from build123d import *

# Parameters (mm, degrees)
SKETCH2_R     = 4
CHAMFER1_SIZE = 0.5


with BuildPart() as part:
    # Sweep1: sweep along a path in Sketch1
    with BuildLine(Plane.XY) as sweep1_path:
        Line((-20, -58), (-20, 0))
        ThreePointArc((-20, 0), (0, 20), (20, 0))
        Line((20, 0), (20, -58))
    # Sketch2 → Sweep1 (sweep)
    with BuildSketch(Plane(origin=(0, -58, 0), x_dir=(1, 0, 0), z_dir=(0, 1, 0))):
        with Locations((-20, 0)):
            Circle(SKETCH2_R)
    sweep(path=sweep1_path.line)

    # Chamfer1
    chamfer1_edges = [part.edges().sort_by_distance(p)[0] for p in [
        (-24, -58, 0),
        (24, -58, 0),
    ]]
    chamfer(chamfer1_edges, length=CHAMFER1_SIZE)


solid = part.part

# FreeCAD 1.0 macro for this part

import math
import FreeCAD as App
import Part
import Sketcher
Q = App.Units.Quantity


def edges_at(feature, points):
    """Names of the edges that pass closest to the given points."""
    edges = feature.Shape.Edges
    near = lambda p: min(range(len(edges)), key=lambda i: edges[i].distToShape(Part.Vertex(*p))[0])
    return sorted({f"Edge{near(p) + 1}" for p in points})

doc = App.newDocument("Part")
body = doc.addObject("PartDesign::Body", "Body")

# Sketch on XZ plane
sketch1 = body.newObject("Sketcher::SketchObject", "Sketch")
sketch1.AttachmentSupport = (doc.getObject("XZ_Plane"), [""])
sketch1.MapMode = "FlatFace"
sketch1.AttachmentOffset = App.Placement(App.Vector(0, 0, 58), App.Rotation())
sketch1.addGeometry(Part.Circle(App.Vector(-20, 0, 0), App.Vector(0, 0, 1), 4), False)
sketch1.addConstraint([
    Sketcher.Constraint("PointOnObject", 0, 3, -1),
    Sketcher.Constraint("Diameter", 0, Q("8 mm")),
    Sketcher.Constraint("DistanceX", 0, 3, -1, 1, Q("20 mm")),
])

# Sketch on XY plane
sketch2 = body.newObject("Sketcher::SketchObject", "Sketch001")
sketch2.AttachmentSupport = (doc.getObject("XY_Plane"), [""])
sketch2.MapMode = "FlatFace"
sketch2.addGeometry([
    Part.LineSegment(App.Vector(-20, -58, 0), App.Vector(-20, 0, 0)),
    Part.ArcOfCircle(Part.Circle(App.Vector(0, 0, 0), App.Vector(0, 0, 1), 20), math.radians(0), math.radians(180)),
    Part.LineSegment(App.Vector(20, 0, 0), App.Vector(20, -58, 0)),
], False)
sketch2.addConstraint([
    Sketcher.Constraint("Tangent", 0, 2, 1, 2),
    Sketcher.Constraint("Tangent", 1, 1, 2, 1),
    Sketcher.Constraint("Vertical", 0),
    Sketcher.Constraint("Vertical", 2),
    Sketcher.Constraint("Coincident", 1, 3, -1, 1),
    Sketcher.Constraint("Horizontal", 0, 1, 2, 2),
    Sketcher.Constraint("Radius", 1, Q("20 mm")),
    Sketcher.Constraint("DistanceY", 0, 1, 0, 2, Q("58 mm")),
])
doc.recompute()

additivepipe = body.newObject("PartDesign::AdditivePipe", "AdditivePipe")
additivepipe.Profile = sketch1
additivepipe.Spine = (sketch2, ["Edge1", "Edge2", "Edge3"])
doc.recompute()

chamfer = body.newObject("PartDesign::Chamfer", "Chamfer")
chamfer.Base = (additivepipe, edges_at(additivepipe, [(-24, -58, 0), (24, -58, 0)]))
chamfer.Size = 0.5

doc.recompute()
